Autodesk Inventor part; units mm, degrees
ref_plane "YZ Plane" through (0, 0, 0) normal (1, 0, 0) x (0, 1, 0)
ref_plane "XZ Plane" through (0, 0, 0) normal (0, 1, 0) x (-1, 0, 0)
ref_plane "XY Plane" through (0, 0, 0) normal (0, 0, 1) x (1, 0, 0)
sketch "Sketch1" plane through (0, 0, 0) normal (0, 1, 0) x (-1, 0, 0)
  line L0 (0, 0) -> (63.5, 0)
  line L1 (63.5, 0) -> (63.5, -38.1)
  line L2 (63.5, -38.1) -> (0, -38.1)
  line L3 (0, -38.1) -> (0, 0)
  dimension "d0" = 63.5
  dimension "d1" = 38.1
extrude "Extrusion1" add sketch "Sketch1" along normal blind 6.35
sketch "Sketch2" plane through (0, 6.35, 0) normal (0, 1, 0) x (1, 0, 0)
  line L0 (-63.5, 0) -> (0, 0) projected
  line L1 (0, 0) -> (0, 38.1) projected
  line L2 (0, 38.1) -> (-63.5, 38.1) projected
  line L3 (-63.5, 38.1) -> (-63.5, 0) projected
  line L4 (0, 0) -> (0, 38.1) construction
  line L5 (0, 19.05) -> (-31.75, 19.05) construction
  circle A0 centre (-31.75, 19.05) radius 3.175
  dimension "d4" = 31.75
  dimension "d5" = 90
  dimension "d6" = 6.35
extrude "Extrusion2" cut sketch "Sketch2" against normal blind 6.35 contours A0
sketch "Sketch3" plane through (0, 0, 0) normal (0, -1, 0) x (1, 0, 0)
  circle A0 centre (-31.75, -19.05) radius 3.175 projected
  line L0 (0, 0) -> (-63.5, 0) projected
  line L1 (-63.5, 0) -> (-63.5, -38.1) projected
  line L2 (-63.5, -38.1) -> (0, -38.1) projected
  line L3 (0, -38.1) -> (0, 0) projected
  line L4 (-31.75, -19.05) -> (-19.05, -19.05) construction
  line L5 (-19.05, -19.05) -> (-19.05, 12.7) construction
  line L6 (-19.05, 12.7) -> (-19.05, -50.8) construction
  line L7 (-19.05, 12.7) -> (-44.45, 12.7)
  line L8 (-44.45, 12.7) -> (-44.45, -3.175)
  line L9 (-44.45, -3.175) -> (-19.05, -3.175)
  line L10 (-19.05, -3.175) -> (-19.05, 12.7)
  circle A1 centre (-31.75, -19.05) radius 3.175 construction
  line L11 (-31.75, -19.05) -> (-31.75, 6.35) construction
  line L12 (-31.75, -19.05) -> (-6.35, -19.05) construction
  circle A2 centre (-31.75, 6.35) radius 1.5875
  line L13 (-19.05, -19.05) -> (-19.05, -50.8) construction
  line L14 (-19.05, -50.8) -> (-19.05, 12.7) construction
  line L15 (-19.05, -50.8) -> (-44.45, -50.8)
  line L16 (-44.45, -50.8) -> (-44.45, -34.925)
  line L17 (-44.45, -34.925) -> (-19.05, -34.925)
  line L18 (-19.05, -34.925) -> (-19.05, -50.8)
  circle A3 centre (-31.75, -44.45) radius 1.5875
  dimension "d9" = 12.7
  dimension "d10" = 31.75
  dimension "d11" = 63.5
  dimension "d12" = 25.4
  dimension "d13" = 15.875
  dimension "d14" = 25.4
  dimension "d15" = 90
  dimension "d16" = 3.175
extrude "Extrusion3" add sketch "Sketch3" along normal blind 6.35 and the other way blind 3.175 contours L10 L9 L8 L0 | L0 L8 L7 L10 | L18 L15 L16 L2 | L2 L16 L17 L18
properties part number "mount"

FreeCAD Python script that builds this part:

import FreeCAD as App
import Part
import Sketcher
Q = App.Units.Quantity

doc = App.newDocument("Part")
body = doc.addObject("PartDesign::Body", "Body")

sketch1 = body.newObject("Sketcher::SketchObject", "Sketch")
sketch1.AttachmentSupport = (doc.getObject("XZ_Plane"), [""])
sketch1.MapMode = "FlatFace"
sketch1.addGeometry(Part.LineSegment(App.Vector(-64, 0, 0), App.Vector(0, 0, 0)), False)
sketch1.addGeometry(Part.LineSegment(App.Vector(0, 0, 0), App.Vector(0, -38, 0)), False)
sketch1.addGeometry(Part.LineSegment(App.Vector(0, -38, 0), App.Vector(-64, -38, 0)), False)
sketch1.addGeometry(Part.LineSegment(App.Vector(-64, -38, 0), App.Vector(-64, 0, 0)), False)
sketch1.addConstraint(Sketcher.Constraint("Coincident", 0, 2, 1, 1))
sketch1.addConstraint(Sketcher.Constraint("Coincident", 1, 2, 2, 1))
sketch1.addConstraint(Sketcher.Constraint("Coincident", 2, 2, 3, 1))
sketch1.addConstraint(Sketcher.Constraint("Coincident", 3, 2, 0, 1))
sketch1.addConstraint(Sketcher.Constraint("Horizontal", 0))
sketch1.addConstraint(Sketcher.Constraint("Vertical", 1))
sketch1.addConstraint(Sketcher.Constraint("Horizontal", 2))
sketch1.addConstraint(Sketcher.Constraint("Vertical", 3))
sketch1.addConstraint(Sketcher.Constraint("Coincident", 0, 2, -1, 1))
sketch1.addConstraint(Sketcher.Constraint("DistanceX", 0, 1, 0, 2, Q("2.5 in")))
sketch1.addConstraint(Sketcher.Constraint("DistanceY", 1, 2, 1, 1, Q("1.5 in")))
pad1 = body.newObject("PartDesign::Pad", "Pad")
pad1.Profile = sketch1
pad1.Length = Q("0.25 in")
pad1.Reversed = True

sketch2 = body.newObject("Sketcher::SketchObject", "Sketch001")
sketch2.AttachmentSupport = (doc.getObject("XZ_Plane"), [""])
sketch2.MapMode = "FlatFace"
sketch2.AttachmentOffset = App.Placement(App.Vector(0, 0, -0.25 * 25.4), App.Rotation())
sketch2.addGeometry(Part.Circle(App.Vector(-31.8, -19.1, 0), App.Vector(0, 0, 1), 3.2), False)
sketch2.addConstraint(Sketcher.Constraint("Diameter", 0, Q("0.25 in")))
sketch2.addConstraint(Sketcher.Constraint("DistanceX", 0, 3, -1, 1, Q("1.25 in")))
sketch2.addConstraint(Sketcher.Constraint("DistanceY", 0, 3, -1, 1, Q("0.75 in")))
pocket1 = body.newObject("PartDesign::Pocket", "Pocket")
pocket1.Profile = sketch2
pocket1.Length = Q("0.25 in")
pocket1.Reversed = True

sketch3 = body.newObject("Sketcher::SketchObject", "Sketch002")
sketch3.AttachmentSupport = (doc.getObject("XZ_Plane"), [""])
sketch3.MapMode = "FlatFace"
sketch3.addGeometry(Part.LineSegment(App.Vector(-19.1, -3.2, 0), App.Vector(-19.1, 12.7, 0)), False)
sketch3.addGeometry(Part.LineSegment(App.Vector(-19.1, 12.7, 0), App.Vector(-44.5, 12.7, 0)), False)
sketch3.addGeometry(Part.LineSegment(App.Vector(-44.5, 12.7, 0), App.Vector(-44.5, -3.2, 0)), False)
sketch3.addGeometry(Part.LineSegment(App.Vector(-44.5, -3.2, 0), App.Vector(-19.1, -3.2, 0)), False)
sketch3.addGeometry(Part.Circle(App.Vector(-31.8, 6.3, 0), App.Vector(0, 0, 1), 1.6), False)
sketch3.addGeometry(Part.LineSegment(App.Vector(-19.1, -50.8, 0), App.Vector(-19.1, -34.9, 0)), False)
sketch3.addGeometry(Part.LineSegment(App.Vector(-19.1, -34.9, 0), App.Vector(-44.5, -34.9, 0)), False)
sketch3.addGeometry(Part.LineSegment(App.Vector(-44.5, -34.9, 0), App.Vector(-44.5, -50.8, 0)), False)
sketch3.addGeometry(Part.LineSegment(App.Vector(-44.5, -50.8, 0), App.Vector(-19.1, -50.8, 0)), False)
sketch3.addGeometry(Part.Circle(App.Vector(-31.8, -44.5, 0), App.Vector(0, 0, 1), 1.6), False)
sketch3.addConstraint(Sketcher.Constraint("Coincident", 0, 2, 1, 1))
sketch3.addConstraint(Sketcher.Constraint("Coincident", 1, 2, 2, 1))
sketch3.addConstraint(Sketcher.Constraint("Coincident", 2, 2, 3, 1))
sketch3.addConstraint(Sketcher.Constraint("Coincident", 3, 2, 0, 1))
sketch3.addConstraint(Sketcher.Constraint("Coincident", 5, 2, 6, 1))
sketch3.addConstraint(Sketcher.Constraint("Coincident", 6, 2, 7, 1))
sketch3.addConstraint(Sketcher.Constraint("Coincident", 7, 2, 8, 1))
sketch3.addConstraint(Sketcher.Constraint("Coincident", 8, 2, 5, 1))
sketch3.addConstraint(Sketcher.Constraint("Vertical", 0))
sketch3.addConstraint(Sketcher.Constraint("Horizontal", 1))
sketch3.addConstraint(Sketcher.Constraint("Vertical", 2))
sketch3.addConstraint(Sketcher.Constraint("Horizontal", 3))
sketch3.addConstraint(Sketcher.Constraint("Vertical", 5))
sketch3.addConstraint(Sketcher.Constraint("Horizontal", 6))
sketch3.addConstraint(Sketcher.Constraint("Vertical", 7))
sketch3.addConstraint(Sketcher.Constraint("Horizontal", 8))
sketch3.addConstraint(Sketcher.Constraint("Equal", 4, 9))
sketch3.addConstraint(Sketcher.Constraint("Vertical", 4, 3, 9, 3))
sketch3.addConstraint(Sketcher.Constraint("Vertical", 3, 2, 5, 2))
sketch3.addConstraint(Sketcher.Constraint("Vertical", 2, 2, 6, 2))
sketch3.addConstraint(Sketcher.Constraint("Equal", 2, 5))
sketch3.addConstraint(Sketcher.Constraint("DistanceX", 1, 2, 1, 1, Q("1 in")))
sketch3.addConstraint(Sketcher.Constraint("Diameter", 4, Q("0.125 in")))
sketch3.addConstraint(Sketcher.Constraint("DistanceY", -1, 1, 0, 2, Q("0.5 in")))
sketch3.addConstraint(Sketcher.Constraint("DistanceX", 4, 3, 0, 2, Q("0.5 in")))
sketch3.addConstraint(Sketcher.Constraint("DistanceY", 0, 1, 0, 2, Q("0.625 in")))
sketch3.addConstraint(Sketcher.Constraint("DistanceX", 4, 3, -1, 1, Q("1.25 in")))
sketch3.addConstraint(Sketcher.Constraint("DistanceY", 5, 2, 3, 2, Q("1.25 in")))
sketch3.addConstraint(Sketcher.Constraint("DistanceY", 9, 3, 4, 3, Q("2 in")))
sketch3.addConstraint(Sketcher.Constraint("DistanceY", -1, 1, 4, 3, Q("0.25 in")))
pad2 = body.newObject("PartDesign::Pad", "Pad001")
pad2.Profile = sketch3
pad2.Type = "TwoLengths"
pad2.Length = Q("0.25 in")
pad2.Length2 = Q("0.125 in")

doc.recompute()
